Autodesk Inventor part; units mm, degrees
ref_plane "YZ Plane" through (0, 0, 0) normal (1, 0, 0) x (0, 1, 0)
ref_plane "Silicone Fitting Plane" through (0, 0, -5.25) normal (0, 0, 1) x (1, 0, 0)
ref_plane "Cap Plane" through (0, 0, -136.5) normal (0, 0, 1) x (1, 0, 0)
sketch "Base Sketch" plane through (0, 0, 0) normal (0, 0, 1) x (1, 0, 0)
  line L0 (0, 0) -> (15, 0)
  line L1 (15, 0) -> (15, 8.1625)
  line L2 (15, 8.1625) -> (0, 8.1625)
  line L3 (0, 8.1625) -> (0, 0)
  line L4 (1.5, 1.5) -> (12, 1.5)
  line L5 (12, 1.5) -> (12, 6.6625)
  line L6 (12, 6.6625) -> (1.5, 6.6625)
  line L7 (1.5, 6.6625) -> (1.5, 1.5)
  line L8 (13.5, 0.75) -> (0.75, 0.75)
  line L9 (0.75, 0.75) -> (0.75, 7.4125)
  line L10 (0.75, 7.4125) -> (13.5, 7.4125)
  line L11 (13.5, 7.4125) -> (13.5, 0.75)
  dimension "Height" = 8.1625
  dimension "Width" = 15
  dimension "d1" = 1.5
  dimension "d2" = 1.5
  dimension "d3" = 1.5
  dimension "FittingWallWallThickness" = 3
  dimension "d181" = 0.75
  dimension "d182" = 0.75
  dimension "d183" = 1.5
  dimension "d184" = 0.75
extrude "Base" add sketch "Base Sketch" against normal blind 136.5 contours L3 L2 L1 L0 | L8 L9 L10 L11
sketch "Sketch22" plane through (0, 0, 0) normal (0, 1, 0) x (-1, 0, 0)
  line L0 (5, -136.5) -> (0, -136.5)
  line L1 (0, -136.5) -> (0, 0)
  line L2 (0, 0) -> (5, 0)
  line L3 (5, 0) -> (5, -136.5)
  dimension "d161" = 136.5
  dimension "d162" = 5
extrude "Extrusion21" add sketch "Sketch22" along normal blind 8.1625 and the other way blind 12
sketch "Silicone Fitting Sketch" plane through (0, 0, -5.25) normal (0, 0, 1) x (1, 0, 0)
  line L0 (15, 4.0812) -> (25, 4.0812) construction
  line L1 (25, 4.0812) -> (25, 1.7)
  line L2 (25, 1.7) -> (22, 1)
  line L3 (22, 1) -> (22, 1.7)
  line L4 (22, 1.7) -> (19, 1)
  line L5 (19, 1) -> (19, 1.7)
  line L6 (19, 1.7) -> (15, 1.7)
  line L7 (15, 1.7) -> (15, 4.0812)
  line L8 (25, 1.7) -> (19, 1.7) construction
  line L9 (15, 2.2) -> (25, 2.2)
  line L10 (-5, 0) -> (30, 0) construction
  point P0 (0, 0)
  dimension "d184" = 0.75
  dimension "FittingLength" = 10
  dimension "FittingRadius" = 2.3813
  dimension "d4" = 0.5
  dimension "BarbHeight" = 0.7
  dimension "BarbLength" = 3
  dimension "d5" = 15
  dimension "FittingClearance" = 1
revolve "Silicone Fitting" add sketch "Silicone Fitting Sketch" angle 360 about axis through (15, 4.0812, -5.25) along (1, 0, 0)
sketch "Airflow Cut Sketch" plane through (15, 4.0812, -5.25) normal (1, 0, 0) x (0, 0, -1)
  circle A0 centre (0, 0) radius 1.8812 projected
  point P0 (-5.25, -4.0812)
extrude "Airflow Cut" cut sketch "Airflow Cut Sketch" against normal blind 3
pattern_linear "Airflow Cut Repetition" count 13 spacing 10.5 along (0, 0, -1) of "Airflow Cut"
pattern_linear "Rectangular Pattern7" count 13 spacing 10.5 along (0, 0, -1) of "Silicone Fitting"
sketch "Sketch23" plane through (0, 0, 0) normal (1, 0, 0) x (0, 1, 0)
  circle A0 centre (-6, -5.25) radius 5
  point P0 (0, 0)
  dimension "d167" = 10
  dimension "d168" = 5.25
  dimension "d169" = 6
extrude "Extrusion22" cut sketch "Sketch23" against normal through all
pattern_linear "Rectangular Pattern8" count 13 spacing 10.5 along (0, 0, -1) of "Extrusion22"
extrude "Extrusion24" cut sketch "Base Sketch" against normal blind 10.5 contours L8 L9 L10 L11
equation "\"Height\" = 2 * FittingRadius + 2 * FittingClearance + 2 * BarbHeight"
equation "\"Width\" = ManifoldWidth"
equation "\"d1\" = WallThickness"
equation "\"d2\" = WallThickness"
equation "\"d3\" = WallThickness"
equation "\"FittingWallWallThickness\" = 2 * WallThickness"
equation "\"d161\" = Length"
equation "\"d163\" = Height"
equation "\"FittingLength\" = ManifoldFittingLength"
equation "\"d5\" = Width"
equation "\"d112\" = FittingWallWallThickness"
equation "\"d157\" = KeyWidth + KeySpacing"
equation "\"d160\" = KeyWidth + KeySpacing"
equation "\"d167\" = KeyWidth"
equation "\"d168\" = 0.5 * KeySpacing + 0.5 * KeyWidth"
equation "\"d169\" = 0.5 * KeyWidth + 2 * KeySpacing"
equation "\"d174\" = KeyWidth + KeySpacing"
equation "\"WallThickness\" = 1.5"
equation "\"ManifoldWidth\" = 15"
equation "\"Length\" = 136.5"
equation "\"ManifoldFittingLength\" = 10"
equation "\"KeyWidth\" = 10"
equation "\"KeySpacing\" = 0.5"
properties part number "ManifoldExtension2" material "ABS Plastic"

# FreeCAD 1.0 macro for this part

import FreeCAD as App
import Part
import Sketcher

V = App.Vector

doc = App.newDocument("Part")
body = doc.addObject("PartDesign::Body", "Body")

sketch1 = body.newObject("Sketcher::SketchObject", "Sketch")
sketch1.AttachmentSupport = (doc.getObject("XY_Plane"), [""])
sketch1.MapMode = "FlatFace"
sketch1.addGeometry(Part.LineSegment(V(0, 8, 0), V(0, 0, 0)), False)
sketch1.addGeometry(Part.LineSegment(V(0, 0, 0), V(15, 0, 0)), False)
sketch1.addGeometry(Part.LineSegment(V(15, 0, 0), V(15, 8, 0)), False)
sketch1.addGeometry(Part.LineSegment(V(15, 8, 0), V(0, 8, 0)), False)
sketch1.addGeometry(Part.LineSegment(V(12, 2, 0), V(2, 2, 0)), False)
sketch1.addGeometry(Part.LineSegment(V(2, 2, 0), V(2, 7, 0)), False)
sketch1.addGeometry(Part.LineSegment(V(2, 7, 0), V(12, 7, 0)), False)
sketch1.addGeometry(Part.LineSegment(V(12, 7, 0), V(12, 2, 0)), False)
sketch1.addConstraint(Sketcher.Constraint("Coincident", 0, 2, 1, 1))
sketch1.addConstraint(Sketcher.Constraint("Coincident", 1, 2, 2, 1))
sketch1.addConstraint(Sketcher.Constraint("Coincident", 2, 2, 3, 1))
sketch1.addConstraint(Sketcher.Constraint("Coincident", 3, 2, 0, 1))
sketch1.addConstraint(Sketcher.Constraint("Coincident", 4, 2, 5, 1))
sketch1.addConstraint(Sketcher.Constraint("Coincident", 5, 2, 6, 1))
sketch1.addConstraint(Sketcher.Constraint("Coincident", 6, 2, 7, 1))
sketch1.addConstraint(Sketcher.Constraint("Coincident", 7, 2, 4, 1))
sketch1.addConstraint(Sketcher.Constraint("Vertical", 0))
sketch1.addConstraint(Sketcher.Constraint("Horizontal", 1))
sketch1.addConstraint(Sketcher.Constraint("Vertical", 2))
sketch1.addConstraint(Sketcher.Constraint("Horizontal", 3))
sketch1.addConstraint(Sketcher.Constraint("Horizontal", 4))
sketch1.addConstraint(Sketcher.Constraint("Vertical", 5))
sketch1.addConstraint(Sketcher.Constraint("Horizontal", 6))
sketch1.addConstraint(Sketcher.Constraint("Vertical", 7))
sketch1.addConstraint(Sketcher.Constraint("Coincident", 0, 2, -1, 1))
sketch1.addConstraint(Sketcher.Constraint("DistanceX", 1, 1, 1, 2, 15.0))
sketch1.addConstraint(Sketcher.Constraint("DistanceX", 6, 2, 2, 2, 3.0))
sketch1.addConstraint(Sketcher.Constraint("DistanceX", -1, 1, 4, 2, 1.5))
sketch1.addConstraint(Sketcher.Constraint("DistanceY", -1, 1, 4, 2, 1.5))
sketch1.addConstraint(Sketcher.Constraint("DistanceY", 5, 2, 3, 2, 1.5))
sketch1.addConstraint(Sketcher.Constraint("DistanceY", 0, 2, 0, 1, 8.1625))
pad1 = body.newObject("PartDesign::Pad", "Pad")
pad1.Profile = sketch1
pad1.Length = 136.5
pad1.Reversed = True

sketch2 = body.newObject("Sketcher::SketchObject", "Sketch001")
sketch2.AttachmentSupport = (doc.getObject("XZ_Plane"), [""])
sketch2.MapMode = "FlatFace"
sketch2.addGeometry(Part.LineSegment(V(0, -136, 0), V(-5, -136, 0)), False)
sketch2.addGeometry(Part.LineSegment(V(-5, -136, 0), V(-5, 0, 0)), False)
sketch2.addGeometry(Part.LineSegment(V(-5, 0, 0), V(0, 0, 0)), False)
sketch2.addGeometry(Part.LineSegment(V(0, 0, 0), V(0, -136, 0)), False)
sketch2.addConstraint(Sketcher.Constraint("Coincident", 0, 2, 1, 1))
sketch2.addConstraint(Sketcher.Constraint("Coincident", 1, 2, 2, 1))
sketch2.addConstraint(Sketcher.Constraint("Coincident", 2, 2, 3, 1))
sketch2.addConstraint(Sketcher.Constraint("Coincident", 3, 2, 0, 1))
sketch2.addConstraint(Sketcher.Constraint("Horizontal", 0))
sketch2.addConstraint(Sketcher.Constraint("Vertical", 1))
sketch2.addConstraint(Sketcher.Constraint("Horizontal", 2))
sketch2.addConstraint(Sketcher.Constraint("Vertical", 3))
sketch2.addConstraint(Sketcher.Constraint("Coincident", 2, 2, -1, 1))
sketch2.addConstraint(Sketcher.Constraint("DistanceX", 0, 2, 0, 1, 5.0))
sketch2.addConstraint(Sketcher.Constraint("DistanceY", 1, 1, 1, 2, 136.5))
pad2 = body.newObject("PartDesign::Pad", "Pad001")
pad2.Profile = sketch2
pad2.Type = "TwoLengths"
pad2.Length = 8.1625
pad2.Length2 = 12
pad2.Reversed = True

sketch3 = body.newObject("Sketcher::SketchObject", "Sketch002")
sketch3.AttachmentSupport = (doc.getObject("XY_Plane"), [""])
sketch3.MapMode = "FlatFace"
sketch3.AttachmentOffset = App.Placement(V(0, 0, -5.25), App.Rotation())
sketch3.addGeometry(Part.LineSegment(V(25, 1.7, 0), V(25, 2.2, 0)), False)
sketch3.addGeometry(Part.LineSegment(V(25, 2.2, 0), V(15, 2.2, 0)), False)
sketch3.addGeometry(Part.LineSegment(V(15, 2.2, 0), V(15, 1.7, 0)), False)
sketch3.addGeometry(Part.LineSegment(V(15, 1.7, 0), V(19, 1.7, 0)), False)
sketch3.addGeometry(Part.LineSegment(V(19, 1.7, 0), V(19, 1, 0)), False)
sketch3.addGeometry(Part.LineSegment(V(19, 1, 0), V(22, 1.7, 0)), False)
sketch3.addGeometry(Part.LineSegment(V(22, 1.7, 0), V(22, 1, 0)), False)
sketch3.addGeometry(Part.LineSegment(V(22, 1, 0), V(25, 1.7, 0)), False)
sketch3.addGeometry(Part.LineSegment(V(15, 4.1, 0), V(25, 4.1, 0)), True)
sketch3.addConstraint(Sketcher.Constraint("Coincident", 0, 2, 1, 1))
sketch3.addConstraint(Sketcher.Constraint("Coincident", 1, 2, 2, 1))
sketch3.addConstraint(Sketcher.Constraint("Coincident", 2, 2, 3, 1))
sketch3.addConstraint(Sketcher.Constraint("Coincident", 3, 2, 4, 1))
sketch3.addConstraint(Sketcher.Constraint("Coincident", 4, 2, 5, 1))
sketch3.addConstraint(Sketcher.Constraint("Coincident", 5, 2, 6, 1))
sketch3.addConstraint(Sketcher.Constraint("Coincident", 6, 2, 7, 1))
sketch3.addConstraint(Sketcher.Constraint("Coincident", 7, 2, 0, 1))
sketch3.addConstraint(Sketcher.Constraint("Vertical", 0))
sketch3.addConstraint(Sketcher.Constraint("Horizontal", 1))
sketch3.addConstraint(Sketcher.Constraint("Vertical", 2))
sketch3.addConstraint(Sketcher.Constraint("Horizontal", 3))
sketch3.addConstraint(Sketcher.Constraint("Vertical", 4))
sketch3.addConstraint(Sketcher.Constraint("Vertical", 6))
sketch3.addConstraint(Sketcher.Constraint("Horizontal", 8))
sketch3.addConstraint(Sketcher.Constraint("Parallel", 5, 7))
sketch3.addConstraint(Sketcher.Constraint("Horizontal", 3, 2, 5, 2))
sketch3.addConstraint(Sketcher.Constraint("Horizontal", 4, 2, 6, 2))
sketch3.addConstraint(Sketcher.Constraint("Horizontal", 5, 2, 7, 2))
sketch3.addConstraint(Sketcher.Constraint("Vertical", 2, 2, 8, 1))
sketch3.addConstraint(Sketcher.Constraint("Vertical", 7, 2, 8, 2))
sketch3.addConstraint(Sketcher.Constraint("DistanceX", 1, 2, 1, 1, 10.0))
sketch3.addConstraint(Sketcher.Constraint("DistanceY", 0, 1, 0, 2, 0.5))
sketch3.addConstraint(Sketcher.Constraint("DistanceY", 4, 2, 4, 1, 0.7))
sketch3.addConstraint(Sketcher.Constraint("DistanceX", -1, 1, 1, 2, 15.0))
sketch3.addConstraint(Sketcher.Constraint("DistanceY", -1, 1, 4, 2, 1.0))
sketch3.addConstraint(Sketcher.Constraint("DistanceX", 3, 2, 5, 2, 3.0))
sketch3.addConstraint(Sketcher.Constraint("DistanceY", 2, 2, 8, 1, 2.3812))
revolution = body.newObject("PartDesign::Revolution", "Revolution")
revolution.Profile = sketch3
revolution.ReferenceAxis = (sketch3, ["Axis0"])
revolution.Angle = 360

sketch4 = body.newObject("Sketcher::SketchObject", "Sketch003")
sketch4.AttachmentSupport = (doc.getObject("YZ_Plane"), [""])
sketch4.MapMode = "FlatFace"
sketch4.AttachmentOffset = App.Placement(V(0, 0, 15), App.Rotation())
sketch4.addGeometry(Part.Circle(V(4.1, -5.2, 0), V(0, 0, 1), 1.9), False)
sketch4.addConstraint(Sketcher.Constraint("Diameter", 0, 3.7624))
sketch4.addConstraint(Sketcher.Constraint("DistanceY", 0, 3, -1, 1, 5.25))
sketch4.addConstraint(Sketcher.Constraint("DistanceX", -1, 1, 0, 3, 4.0812))
pocket1 = body.newObject("PartDesign::Pocket", "Pocket")
pocket1.Profile = sketch4
pocket1.Length = 3
doc.recompute()

linearpattern = body.newObject("PartDesign::LinearPattern", "LinearPattern")
linearpattern.Originals = [pocket1]
linearpattern.Direction = (doc.getObject("Z_Axis"), [""])
linearpattern.Mode = "offset"
linearpattern.Offset = 10.5
linearpattern.Occurrences = 13
linearpattern.Reversed = True
body.Tip = linearpattern
doc.recompute()

linearpattern2 = body.newObject("PartDesign::LinearPattern", "LinearPattern001")
linearpattern2.Originals = [revolution]
linearpattern2.Direction = (doc.getObject("Z_Axis"), [""])
linearpattern2.Mode = "offset"
linearpattern2.Offset = 10.5
linearpattern2.Occurrences = 13
linearpattern2.Reversed = True
body.Tip = linearpattern2

sketch5 = body.newObject("Sketcher::SketchObject", "Sketch004")
sketch5.AttachmentSupport = (doc.getObject("YZ_Plane"), [""])
sketch5.MapMode = "FlatFace"
sketch5.addGeometry(Part.Circle(V(-6, -5, 0), V(0, 0, 1), 5), False)
sketch5.addConstraint(Sketcher.Constraint("Diameter", 0, 10.0))
sketch5.addConstraint(Sketcher.Constraint("DistanceX", 0, 3, -1, 1, 6.0))
sketch5.addConstraint(Sketcher.Constraint("DistanceY", 0, 3, -1, 1, 5.25))
pocket2 = body.newObject("PartDesign::Pocket", "Pocket001")
pocket2.Profile = sketch5
pocket2.Type = "ThroughAll"
doc.recompute()

linearpattern3 = body.newObject("PartDesign::LinearPattern", "LinearPattern002")
linearpattern3.Originals = [pocket2]
linearpattern3.Direction = (doc.getObject("Z_Axis"), [""])
linearpattern3.Mode = "offset"
linearpattern3.Offset = 10.5
linearpattern3.Occurrences = 13
linearpattern3.Reversed = True
body.Tip = linearpattern3

sketch6 = body.newObject("Sketcher::SketchObject", "Sketch005")
sketch6.AttachmentSupport = (doc.getObject("XY_Plane"), [""])
sketch6.MapMode = "FlatFace"
sketch6.addGeometry(Part.LineSegment(V(1, 1, 0), V(14, 1, 0)), False)
sketch6.addGeometry(Part.LineSegment(V(14, 1, 0), V(14, 7, 0)), False)
sketch6.addGeometry(Part.LineSegment(V(14, 7, 0), V(1, 7, 0)), False)
sketch6.addGeometry(Part.LineSegment(V(1, 7, 0), V(1, 1, 0)), False)
sketch6.addGeometry(Part.LineSegment(V(12, 2, 0), V(2, 2, 0)), False)
sketch6.addGeometry(Part.LineSegment(V(2, 2, 0), V(2, 7, 0)), False)
sketch6.addGeometry(Part.LineSegment(V(2, 7, 0), V(12, 7, 0)), False)
sketch6.addGeometry(Part.LineSegment(V(12, 7, 0), V(12, 2, 0)), False)
sketch6.addConstraint(Sketcher.Constraint("Coincident", 0, 2, 1, 1))
sketch6.addConstraint(Sketcher.Constraint("Coincident", 1, 2, 2, 1))
sketch6.addConstraint(Sketcher.Constraint("Coincident", 2, 2, 3, 1))
sketch6.addConstraint(Sketcher.Constraint("Coincident", 3, 2, 0, 1))
sketch6.addConstraint(Sketcher.Constraint("Coincident", 4, 2, 5, 1))
sketch6.addConstraint(Sketcher.Constraint("Coincident", 5, 2, 6, 1))
sketch6.addConstraint(Sketcher.Constraint("Coincident", 6, 2, 7, 1))
sketch6.addConstraint(Sketcher.Constraint("Coincident", 7, 2, 4, 1))
sketch6.addConstraint(Sketcher.Constraint("Horizontal", 0))
sketch6.addConstraint(Sketcher.Constraint("Vertical", 1))
sketch6.addConstraint(Sketcher.Constraint("Horizontal", 2))
sketch6.addConstraint(Sketcher.Constraint("Vertical", 3))
sketch6.addConstraint(Sketcher.Constraint("Horizontal", 4))
sketch6.addConstraint(Sketcher.Constraint("Vertical", 5))
sketch6.addConstraint(Sketcher.Constraint("Horizontal", 6))
sketch6.addConstraint(Sketcher.Constraint("Vertical", 7))
sketch6.addConstraint(Sketcher.Constraint("DistanceX", -1, 1, 4, 2, 1.5))
sketch6.addConstraint(Sketcher.Constraint("DistanceY", -1, 1, 4, 2, 1.5))
sketch6.addConstraint(Sketcher.Constraint("DistanceX", 6, 2, 1, 2, 1.5))
sketch6.addConstraint(Sketcher.Constraint("DistanceY", -1, 1, 0, 2, 0.75))
sketch6.addConstraint(Sketcher.Constraint("DistanceX", -1, 1, 2, 2, 0.75))
sketch6.addConstraint(Sketcher.Constraint("DistanceY", 5, 2, 2, 2, 0.75))
sketch6.addConstraint(Sketcher.Constraint("DistanceX", 4, 2, 4, 1, 10.5))
sketch6.addConstraint(Sketcher.Constraint("DistanceY", 1, 1, 1, 2, 6.6625))
pocket3 = body.newObject("PartDesign::Pocket", "Pocket002")
pocket3.Profile = sketch6
pocket3.Length = 10.5

doc.recompute()
